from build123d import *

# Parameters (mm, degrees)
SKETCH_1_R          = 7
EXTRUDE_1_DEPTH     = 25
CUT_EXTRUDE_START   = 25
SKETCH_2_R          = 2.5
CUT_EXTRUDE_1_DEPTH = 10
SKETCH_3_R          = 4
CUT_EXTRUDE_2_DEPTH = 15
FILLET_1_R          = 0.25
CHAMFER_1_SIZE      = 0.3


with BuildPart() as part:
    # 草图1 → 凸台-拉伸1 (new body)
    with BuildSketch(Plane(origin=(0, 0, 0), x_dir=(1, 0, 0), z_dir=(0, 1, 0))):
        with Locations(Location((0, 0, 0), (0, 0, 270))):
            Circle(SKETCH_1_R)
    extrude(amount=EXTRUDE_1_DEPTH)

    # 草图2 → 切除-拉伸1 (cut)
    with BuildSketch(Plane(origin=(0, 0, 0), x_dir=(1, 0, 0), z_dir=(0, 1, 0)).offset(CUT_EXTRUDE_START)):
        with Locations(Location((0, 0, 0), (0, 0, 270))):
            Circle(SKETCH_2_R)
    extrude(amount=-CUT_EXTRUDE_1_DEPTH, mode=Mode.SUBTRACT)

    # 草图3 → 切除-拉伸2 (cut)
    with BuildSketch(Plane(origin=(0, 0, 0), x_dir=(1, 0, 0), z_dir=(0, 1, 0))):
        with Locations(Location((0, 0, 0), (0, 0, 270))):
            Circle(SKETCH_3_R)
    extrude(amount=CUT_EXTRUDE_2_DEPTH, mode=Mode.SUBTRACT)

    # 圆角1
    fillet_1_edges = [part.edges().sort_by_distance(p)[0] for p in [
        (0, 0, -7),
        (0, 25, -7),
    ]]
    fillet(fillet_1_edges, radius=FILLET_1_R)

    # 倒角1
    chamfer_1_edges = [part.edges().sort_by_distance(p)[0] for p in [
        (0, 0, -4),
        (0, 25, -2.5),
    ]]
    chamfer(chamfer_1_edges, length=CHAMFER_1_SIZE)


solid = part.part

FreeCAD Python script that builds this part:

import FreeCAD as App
import Part
import Sketcher


def edges_at(feature, points):
    """Names of the edges that pass closest to the given points."""
    edges = feature.Shape.Edges
    near = lambda p: min(range(len(edges)), key=lambda i: edges[i].distToShape(Part.Vertex(*p))[0])
    return sorted({f"Edge{near(p) + 1}" for p in points})

doc = App.newDocument("Part")
body = doc.addObject("PartDesign::Body", "Body")

sketch1 = doc.addObject("Sketcher::SketchObject", "Sketch")
body.addObject(sketch1)
sketch1.AttachmentSupport = (doc.XZ_Plane, [""])
sketch1.MapMode = "FlatFace"
sketch1.addGeometry(Part.Circle(App.Vector(0, 0, 0), App.Vector(0, 0, 1), 7), False)
sketch1.addConstraint(Sketcher.Constraint("Coincident", 0, 3, -1, 1))
sketch1.addConstraint(Sketcher.Constraint("Diameter", 0, 14.0))
pad1 = doc.addObject("PartDesign::Pad", "Pad")
body.addObject(pad1)
pad1.Profile = sketch1
pad1.Length = 25
pad1.Reversed = True

sketch2 = doc.addObject("Sketcher::SketchObject", "Sketch001")
body.addObject(sketch2)
sketch2.AttachmentSupport = (doc.XZ_Plane, [""])
sketch2.MapMode = "FlatFace"
sketch2.AttachmentOffset = App.Placement(App.Vector(0, 0, -25), App.Rotation())
sketch2.addGeometry(Part.Circle(App.Vector(0, 0, 0), App.Vector(0, 0, 1), 2.5), False)
sketch2.addConstraint(Sketcher.Constraint("Coincident", 0, 3, -1, 1))
sketch2.addConstraint(Sketcher.Constraint("Diameter", 0, 5.0))
pocket1 = doc.addObject("PartDesign::Pocket", "Pocket")
body.addObject(pocket1)
pocket1.Profile = sketch2
pocket1.Length = 10
pocket1.Reversed = True

sketch3 = doc.addObject("Sketcher::SketchObject", "Sketch002")
body.addObject(sketch3)
sketch3.AttachmentSupport = (doc.XZ_Plane, [""])
sketch3.MapMode = "FlatFace"
sketch3.addGeometry(Part.Circle(App.Vector(0, 0, 0), App.Vector(0, 0, 1), 4), False)
sketch3.addConstraint(Sketcher.Constraint("Coincident", 0, 3, -1, 1))
sketch3.addConstraint(Sketcher.Constraint("Diameter", 0, 8.0))
pocket2 = doc.addObject("PartDesign::Pocket", "Pocket001")
body.addObject(pocket2)
pocket2.Profile = sketch3
pocket2.Length = 15
doc.recompute()

fillet = doc.addObject("PartDesign::Fillet", "Fillet")
body.addObject(fillet)
fillet.Base = (pocket2, edges_at(pocket2, [(0, 0, -7), (0, 25, -7)]))
fillet.Radius = 0.25
doc.recompute()

chamfer = doc.addObject("PartDesign::Chamfer", "Chamfer")
body.addObject(chamfer)
chamfer.Base = (fillet, edges_at(fillet, [(0, 0, -4), (0, 25, -2.5)]))
chamfer.Size = 0.3

doc.recompute()
